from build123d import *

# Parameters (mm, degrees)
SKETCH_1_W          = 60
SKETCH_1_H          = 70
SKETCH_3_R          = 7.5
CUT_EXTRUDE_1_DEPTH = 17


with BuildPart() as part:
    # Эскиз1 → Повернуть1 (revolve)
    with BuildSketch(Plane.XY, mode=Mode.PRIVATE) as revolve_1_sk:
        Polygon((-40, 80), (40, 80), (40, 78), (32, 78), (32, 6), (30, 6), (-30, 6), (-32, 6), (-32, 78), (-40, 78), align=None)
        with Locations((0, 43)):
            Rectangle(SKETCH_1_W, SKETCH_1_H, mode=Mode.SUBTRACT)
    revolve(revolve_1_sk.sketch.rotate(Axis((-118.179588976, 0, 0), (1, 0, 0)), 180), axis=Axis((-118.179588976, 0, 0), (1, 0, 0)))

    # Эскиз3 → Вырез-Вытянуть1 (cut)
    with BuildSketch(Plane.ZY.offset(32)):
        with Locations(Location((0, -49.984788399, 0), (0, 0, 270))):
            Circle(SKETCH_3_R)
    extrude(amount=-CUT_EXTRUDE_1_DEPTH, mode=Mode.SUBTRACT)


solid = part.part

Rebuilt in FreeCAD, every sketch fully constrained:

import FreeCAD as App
import Part
import Sketcher
Q = App.Units.Quantity


def add_polygon(sketch, points):
    """Adds a closed chain of lines whose ends are joined by coincident constraints."""
    first, n = sketch.GeometryCount, len(points)
    for a, b in zip(points, points[1:] + points[:1]):
        sketch.addGeometry(Part.LineSegment(App.Vector(*a, 0), App.Vector(*b, 0)), False)
    for i in range(n):
        sketch.addConstraint(Sketcher.Constraint("Coincident", first + i, 2, first + (i + 1) % n, 1))

doc = App.newDocument("Part")
body = doc.addObject("PartDesign::Body", "Body")

# Sketch on XY plane
sketch1 = body.newObject("Sketcher::SketchObject", "Sketch")
sketch1.AttachmentSupport = (doc.getObject("XY_Plane"), [""])
sketch1.MapMode = "FlatFace"
add_polygon(sketch1, [(40, 80), (-40, 80), (-40, 78), (-32, 78), (-32, 6), (32, 6), (32, 78), (40, 78)])  # lines 0-7
add_polygon(sketch1, [(-30, 8), (-30, 78), (30, 78), (30, 8)])  # lines 8-11
sketch1.addConstraint([
    Sketcher.Constraint("Horizontal", 0),
    Sketcher.Constraint("Vertical", 1),
    Sketcher.Constraint("Horizontal", 2),
    Sketcher.Constraint("Vertical", 3),
    Sketcher.Constraint("Horizontal", 4),
    Sketcher.Constraint("Vertical", 5),
    Sketcher.Constraint("Horizontal", 6),
    Sketcher.Constraint("Vertical", 7),
    Sketcher.Constraint("Vertical", 8),
    Sketcher.Constraint("Horizontal", 9),
    Sketcher.Constraint("Vertical", 10),
    Sketcher.Constraint("Horizontal", 11),
    Sketcher.Constraint("Symmetric", 2, 2, 5, 2, -2),
    Sketcher.Constraint("Horizontal", 6, 2, 8, 2),
    Sketcher.Constraint("Equal", 2, 6),
    Sketcher.Constraint("DistanceX", 0, 2, 0, 1, Q("80 mm")),
    Sketcher.Constraint("DistanceX", 2, 1, 2, 2, Q("8 mm")),
    Sketcher.Constraint("DistanceX", 9, 1, 9, 2, Q("60 mm")),
    Sketcher.Constraint("DistanceY", 1, 2, 1, 1, Q("2 mm")),
    Sketcher.Constraint("DistanceY", 3, 2, 3, 1, Q("72 mm")),
    Sketcher.Constraint("DistanceY", 8, 1, 8, 2, Q("70 mm")),
    Sketcher.Constraint("DistanceY", -1, 1, 0, 2, Q("80 mm")),
    Sketcher.Constraint("DistanceX", 8, 2, -1, 1, Q("30 mm")),
])
revolution = body.newObject("PartDesign::Revolution", "Revolution")
revolution.Profile = sketch1
revolution.ReferenceAxis = (sketch1, ["H_Axis"])
revolution.Angle = 360

# Sketch on YZ plane
sketch2 = body.newObject("Sketcher::SketchObject", "Sketch001")
sketch2.AttachmentSupport = (doc.getObject("YZ_Plane"), [""])
sketch2.MapMode = "FlatFace"
sketch2.AttachmentOffset = App.Placement(App.Vector(0, 0, -32), App.Rotation())
sketch2.addGeometry(Part.Circle(App.Vector(-49.984788, 0, 0), App.Vector(0, 0, 1), 7.5), False)
sketch2.addConstraint([
    Sketcher.Constraint("PointOnObject", 0, 3, -1),
    Sketcher.Constraint("Diameter", 0, Q("15 mm")),
    Sketcher.Constraint("DistanceX", 0, 3, -1, 1, Q("49.984788 mm")),
])
pocket1 = body.newObject("PartDesign::Pocket", "Pocket")
pocket1.Profile = sketch2
pocket1.Length = 17
pocket1.Reversed = True

doc.recompute()
